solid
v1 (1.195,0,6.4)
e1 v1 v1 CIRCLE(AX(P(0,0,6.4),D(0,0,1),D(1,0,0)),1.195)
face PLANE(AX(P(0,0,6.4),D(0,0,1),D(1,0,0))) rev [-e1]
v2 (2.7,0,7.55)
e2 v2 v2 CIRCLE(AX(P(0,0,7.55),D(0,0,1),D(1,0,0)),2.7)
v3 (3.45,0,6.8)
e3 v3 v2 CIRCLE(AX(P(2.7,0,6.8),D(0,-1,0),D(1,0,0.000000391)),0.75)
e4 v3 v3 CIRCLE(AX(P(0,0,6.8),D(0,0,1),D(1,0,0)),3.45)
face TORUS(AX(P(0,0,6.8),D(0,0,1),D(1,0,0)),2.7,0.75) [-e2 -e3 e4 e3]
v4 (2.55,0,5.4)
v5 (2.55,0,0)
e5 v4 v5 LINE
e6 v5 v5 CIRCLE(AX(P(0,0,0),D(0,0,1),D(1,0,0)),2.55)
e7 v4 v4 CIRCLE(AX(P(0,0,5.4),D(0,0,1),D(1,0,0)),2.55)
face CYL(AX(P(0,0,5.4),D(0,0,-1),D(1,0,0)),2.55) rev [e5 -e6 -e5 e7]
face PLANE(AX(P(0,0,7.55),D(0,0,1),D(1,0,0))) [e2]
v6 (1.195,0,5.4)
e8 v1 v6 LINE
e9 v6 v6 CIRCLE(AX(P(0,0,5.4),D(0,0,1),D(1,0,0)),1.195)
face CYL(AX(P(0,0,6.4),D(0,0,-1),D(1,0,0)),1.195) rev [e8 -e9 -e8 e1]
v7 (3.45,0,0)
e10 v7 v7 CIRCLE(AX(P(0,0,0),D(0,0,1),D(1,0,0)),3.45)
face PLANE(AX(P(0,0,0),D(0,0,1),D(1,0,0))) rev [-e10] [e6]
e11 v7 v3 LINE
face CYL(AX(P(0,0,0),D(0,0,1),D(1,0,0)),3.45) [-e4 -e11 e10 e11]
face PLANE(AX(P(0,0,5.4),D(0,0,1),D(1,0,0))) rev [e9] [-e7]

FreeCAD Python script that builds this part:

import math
import FreeCAD as App
import Part
import Sketcher

doc = App.newDocument("Part")
params = doc.addObject("Spreadsheet::Sheet", "Params")
for row, (alias, value) in enumerate([
    ("sketch1_height", "1 mm"),
    ("sketch1_radius", "0.75 mm"),
    ("sketch1_width", "0.9 mm"),
    ("sketch1_width2", "2.7 mm"),
    ("sketch1_height2", "5.4 mm"),
    ("revolution_angle", "360 deg"),
], start=1):
    params.set(f"A{row}", alias)
    params.set(f"B{row}", "=" + value)
    params.setAlias(f"B{row}", alias)

body = doc.addObject("PartDesign::Body", "Body")

sketch1 = body.newObject("Sketcher::SketchObject", "Sketch")
sketch1.AttachmentSupport = (doc.getObject("XZ_Plane"), [""])
sketch1.MapMode = "FlatFace"
sketch1.addGeometry(Part.LineSegment(App.Vector(2.5, 5.4, 0), App.Vector(2.5, 0, 0)), False)
sketch1.addGeometry(Part.LineSegment(App.Vector(2.5, 0, 0), App.Vector(3.5, 0, 0)), False)
sketch1.addGeometry(Part.LineSegment(App.Vector(3.5, 0, 0), App.Vector(3.5, 6.8, 0)), False)
sketch1.addGeometry(Part.ArcOfCircle(Part.Circle(App.Vector(2.7, 6.8, 0), App.Vector(0, 0, 1), 0.8), math.radians(0), math.radians(90)), False)
sketch1.addGeometry(Part.LineSegment(App.Vector(2.7, 7.5, 0), App.Vector(0, 7.5, 0)), False)
sketch1.addGeometry(Part.LineSegment(App.Vector(0, 7.5, 0), App.Vector(0, 6.4, 0)), False)
sketch1.addGeometry(Part.LineSegment(App.Vector(0, 6.4, 0), App.Vector(1.2, 6.4, 0)), False)
sketch1.addGeometry(Part.LineSegment(App.Vector(1.2, 6.4, 0), App.Vector(1.2, 5.4, 0)), False)
sketch1.addGeometry(Part.LineSegment(App.Vector(1.2, 5.4, 0), App.Vector(2.5, 5.4, 0)), False)
sketch1.addConstraint(Sketcher.Constraint("Coincident", 0, 2, 1, 1))
sketch1.addConstraint(Sketcher.Constraint("Coincident", 1, 2, 2, 1))
sketch1.addConstraint(Sketcher.Constraint("Tangent", 2, 2, 3, 1))
sketch1.addConstraint(Sketcher.Constraint("Tangent", 3, 2, 4, 1))
sketch1.addConstraint(Sketcher.Constraint("Coincident", 4, 2, 5, 1))
sketch1.addConstraint(Sketcher.Constraint("Coincident", 5, 2, 6, 1))
sketch1.addConstraint(Sketcher.Constraint("Coincident", 6, 2, 7, 1))
sketch1.addConstraint(Sketcher.Constraint("Coincident", 7, 2, 8, 1))
sketch1.addConstraint(Sketcher.Constraint("Coincident", 8, 2, 0, 1))
sketch1.addConstraint(Sketcher.Constraint("Vertical", 0))
sketch1.addConstraint(Sketcher.Constraint("Horizontal", 1))
sketch1.addConstraint(Sketcher.Constraint("Vertical", 2))
sketch1.addConstraint(Sketcher.Constraint("Horizontal", 4))
sketch1.addConstraint(Sketcher.Constraint("Vertical", 5))
sketch1.addConstraint(Sketcher.Constraint("Horizontal", 6))
sketch1.addConstraint(Sketcher.Constraint("Vertical", 7))
sketch1.addConstraint(Sketcher.Constraint("Horizontal", 8))
sketch1.addConstraint(Sketcher.Constraint("PointOnObject", 0, 2, -1))
sketch1.addConstraint(Sketcher.Constraint("PointOnObject", 4, 2, -2))
sketch1.addConstraint(Sketcher.Constraint("DistanceY", 7, 2, 7, 1, 1.0))
sketch1.addConstraint(Sketcher.Constraint("Radius", 3, 0.75))
sketch1.addConstraint(Sketcher.Constraint("DistanceX", 1, 1, 1, 2, 0.9))
sketch1.addConstraint(Sketcher.Constraint("DistanceX", 4, 2, 4, 1, 2.7))
sketch1.addConstraint(Sketcher.Constraint("DistanceY", 0, 2, 0, 1, 5.4))
sketch1.addConstraint(Sketcher.Constraint("DistanceY", 2, 1, 2, 2, 6.8))
sketch1.addConstraint(Sketcher.Constraint("DistanceX", 6, 1, 6, 2, 1.195))
sketch1.setExpression("Constraints[19]", "Params.sketch1_height")
sketch1.setExpression("Constraints[20]", "Params.sketch1_radius")
sketch1.setExpression("Constraints[21]", "Params.sketch1_width")
sketch1.setExpression("Constraints[22]", "Params.sketch1_width2")
sketch1.setExpression("Constraints[23]", "Params.sketch1_height2")
revolution = body.newObject("PartDesign::Revolution", "Revolution")
revolution.Profile = sketch1
revolution.ReferenceAxis = (sketch1, ["V_Axis"])
revolution.setExpression("Angle", "Params.revolution_angle")

doc.recompute()
